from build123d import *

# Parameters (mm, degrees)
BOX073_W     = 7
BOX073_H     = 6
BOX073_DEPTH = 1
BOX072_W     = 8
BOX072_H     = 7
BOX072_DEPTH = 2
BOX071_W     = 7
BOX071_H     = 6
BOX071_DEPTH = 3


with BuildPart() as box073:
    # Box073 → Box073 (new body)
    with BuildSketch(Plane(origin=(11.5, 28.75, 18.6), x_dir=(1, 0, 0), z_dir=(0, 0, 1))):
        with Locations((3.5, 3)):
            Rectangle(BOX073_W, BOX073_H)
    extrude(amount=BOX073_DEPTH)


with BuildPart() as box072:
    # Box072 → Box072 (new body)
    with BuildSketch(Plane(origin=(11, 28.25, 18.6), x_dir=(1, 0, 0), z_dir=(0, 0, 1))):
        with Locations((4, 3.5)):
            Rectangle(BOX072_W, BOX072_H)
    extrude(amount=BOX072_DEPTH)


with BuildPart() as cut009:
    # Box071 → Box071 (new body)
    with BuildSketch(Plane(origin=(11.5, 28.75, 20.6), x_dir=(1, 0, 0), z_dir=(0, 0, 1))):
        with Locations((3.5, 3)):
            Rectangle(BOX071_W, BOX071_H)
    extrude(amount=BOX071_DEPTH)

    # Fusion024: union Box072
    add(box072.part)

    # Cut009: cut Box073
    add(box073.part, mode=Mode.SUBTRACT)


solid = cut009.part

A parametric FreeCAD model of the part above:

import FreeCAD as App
import Part
import Sketcher
from FreeCAD import Vector

doc = App.newDocument("Part")
body = doc.addObject("PartDesign::Body", "Body")

# Sketch on XY plane
sketch1 = body.newObject("Sketcher::SketchObject", "Sketch")
sketch1.AttachmentSupport = (doc.getObject("XY_Plane"), [""])
sketch1.MapMode = "FlatFace"
sketch1.AttachmentOffset = App.Placement(Vector(0, 0, 18.6), App.Rotation())
sketch1.addGeometry(Part.LineSegment(Vector(11.5, 34.75, 0), Vector(11.5, 28.75, 0)), False)
sketch1.addGeometry(Part.LineSegment(Vector(11.5, 28.75, 0), Vector(18.5, 28.75, 0)), False)
sketch1.addGeometry(Part.LineSegment(Vector(18.5, 28.75, 0), Vector(18.5, 34.75, 0)), False)
sketch1.addGeometry(Part.LineSegment(Vector(18.5, 34.75, 0), Vector(11.5, 34.75, 0)), False)
sketch1.addConstraint(Sketcher.Constraint("Coincident", 0, 2, 1, 1))
sketch1.addConstraint(Sketcher.Constraint("Coincident", 1, 2, 2, 1))
sketch1.addConstraint(Sketcher.Constraint("Coincident", 2, 2, 3, 1))
sketch1.addConstraint(Sketcher.Constraint("Coincident", 3, 2, 0, 1))
sketch1.addConstraint(Sketcher.Constraint("Vertical", 0))
sketch1.addConstraint(Sketcher.Constraint("Horizontal", 1))
sketch1.addConstraint(Sketcher.Constraint("Vertical", 2))
sketch1.addConstraint(Sketcher.Constraint("Horizontal", 3))
sketch1.addConstraint(Sketcher.Constraint("DistanceX", 1, 1, 1, 2, 7.0))
sketch1.addConstraint(Sketcher.Constraint("DistanceY", 0, 2, 0, 1, 6.0))
sketch1.addConstraint(Sketcher.Constraint("DistanceX", -1, 1, 0, 2, 11.5))
sketch1.addConstraint(Sketcher.Constraint("DistanceY", -1, 1, 0, 2, 28.75))
pad1 = body.newObject("PartDesign::Pad", "Pad")
pad1.Profile = sketch1
pad1.Length = 1
body2 = doc.addObject("PartDesign::Body", "Body001")

# Sketch on XY plane
sketch2 = body2.newObject("Sketcher::SketchObject", "Sketch001")
sketch2.AttachmentSupport = (doc.getObject("XY_Plane001"), [""])
sketch2.MapMode = "FlatFace"
sketch2.AttachmentOffset = App.Placement(Vector(0, 0, 18.6), App.Rotation())
sketch2.addGeometry(Part.LineSegment(Vector(11, 35.25, 0), Vector(11, 28.25, 0)), False)
sketch2.addGeometry(Part.LineSegment(Vector(11, 28.25, 0), Vector(19, 28.25, 0)), False)
sketch2.addGeometry(Part.LineSegment(Vector(19, 28.25, 0), Vector(19, 35.25, 0)), False)
sketch2.addGeometry(Part.LineSegment(Vector(19, 35.25, 0), Vector(11, 35.25, 0)), False)
sketch2.addConstraint(Sketcher.Constraint("Coincident", 0, 2, 1, 1))
sketch2.addConstraint(Sketcher.Constraint("Coincident", 1, 2, 2, 1))
sketch2.addConstraint(Sketcher.Constraint("Coincident", 2, 2, 3, 1))
sketch2.addConstraint(Sketcher.Constraint("Coincident", 3, 2, 0, 1))
sketch2.addConstraint(Sketcher.Constraint("Vertical", 0))
sketch2.addConstraint(Sketcher.Constraint("Horizontal", 1))
sketch2.addConstraint(Sketcher.Constraint("Vertical", 2))
sketch2.addConstraint(Sketcher.Constraint("Horizontal", 3))
sketch2.addConstraint(Sketcher.Constraint("DistanceX", 1, 1, 1, 2, 8.0))
sketch2.addConstraint(Sketcher.Constraint("DistanceY", 0, 2, 0, 1, 7.0))
sketch2.addConstraint(Sketcher.Constraint("DistanceX", -1, 1, 0, 2, 11.0))
sketch2.addConstraint(Sketcher.Constraint("DistanceY", -1, 1, 0, 2, 28.25))
pad2 = body2.newObject("PartDesign::Pad", "Pad001")
pad2.Profile = sketch2
pad2.Length = 2
body3 = doc.addObject("PartDesign::Body", "Body002")

# Sketch on XY plane
sketch3 = body3.newObject("Sketcher::SketchObject", "Sketch002")
sketch3.AttachmentSupport = (doc.getObject("XY_Plane002"), [""])
sketch3.MapMode = "FlatFace"
sketch3.AttachmentOffset = App.Placement(Vector(0, 0, 20.6), App.Rotation())
sketch3.addGeometry(Part.LineSegment(Vector(11.5, 34.75, 0), Vector(11.5, 28.75, 0)), False)
sketch3.addGeometry(Part.LineSegment(Vector(11.5, 28.75, 0), Vector(18.5, 28.75, 0)), False)
sketch3.addGeometry(Part.LineSegment(Vector(18.5, 28.75, 0), Vector(18.5, 34.75, 0)), False)
sketch3.addGeometry(Part.LineSegment(Vector(18.5, 34.75, 0), Vector(11.5, 34.75, 0)), False)
sketch3.addConstraint(Sketcher.Constraint("Coincident", 0, 2, 1, 1))
sketch3.addConstraint(Sketcher.Constraint("Coincident", 1, 2, 2, 1))
sketch3.addConstraint(Sketcher.Constraint("Coincident", 2, 2, 3, 1))
sketch3.addConstraint(Sketcher.Constraint("Coincident", 3, 2, 0, 1))
sketch3.addConstraint(Sketcher.Constraint("Vertical", 0))
sketch3.addConstraint(Sketcher.Constraint("Horizontal", 1))
sketch3.addConstraint(Sketcher.Constraint("Vertical", 2))
sketch3.addConstraint(Sketcher.Constraint("Horizontal", 3))
sketch3.addConstraint(Sketcher.Constraint("DistanceX", 1, 1, 1, 2, 7.0))
sketch3.addConstraint(Sketcher.Constraint("DistanceY", 0, 2, 0, 1, 6.0))
sketch3.addConstraint(Sketcher.Constraint("DistanceX", -1, 1, 0, 2, 11.5))
sketch3.addConstraint(Sketcher.Constraint("DistanceY", -1, 1, 0, 2, 28.75))
pad3 = body3.newObject("PartDesign::Pad", "Pad002")
pad3.Profile = sketch3
pad3.Length = 3
doc.recompute()

boolean = body3.newObject("PartDesign::Boolean", "Boolean")
boolean.Type = "Fuse"
boolean.addObjects([body2])
doc.recompute()

boolean2 = body3.newObject("PartDesign::Boolean", "Boolean001")
boolean2.Type = "Cut"
boolean2.addObjects([body])

doc.recompute()
